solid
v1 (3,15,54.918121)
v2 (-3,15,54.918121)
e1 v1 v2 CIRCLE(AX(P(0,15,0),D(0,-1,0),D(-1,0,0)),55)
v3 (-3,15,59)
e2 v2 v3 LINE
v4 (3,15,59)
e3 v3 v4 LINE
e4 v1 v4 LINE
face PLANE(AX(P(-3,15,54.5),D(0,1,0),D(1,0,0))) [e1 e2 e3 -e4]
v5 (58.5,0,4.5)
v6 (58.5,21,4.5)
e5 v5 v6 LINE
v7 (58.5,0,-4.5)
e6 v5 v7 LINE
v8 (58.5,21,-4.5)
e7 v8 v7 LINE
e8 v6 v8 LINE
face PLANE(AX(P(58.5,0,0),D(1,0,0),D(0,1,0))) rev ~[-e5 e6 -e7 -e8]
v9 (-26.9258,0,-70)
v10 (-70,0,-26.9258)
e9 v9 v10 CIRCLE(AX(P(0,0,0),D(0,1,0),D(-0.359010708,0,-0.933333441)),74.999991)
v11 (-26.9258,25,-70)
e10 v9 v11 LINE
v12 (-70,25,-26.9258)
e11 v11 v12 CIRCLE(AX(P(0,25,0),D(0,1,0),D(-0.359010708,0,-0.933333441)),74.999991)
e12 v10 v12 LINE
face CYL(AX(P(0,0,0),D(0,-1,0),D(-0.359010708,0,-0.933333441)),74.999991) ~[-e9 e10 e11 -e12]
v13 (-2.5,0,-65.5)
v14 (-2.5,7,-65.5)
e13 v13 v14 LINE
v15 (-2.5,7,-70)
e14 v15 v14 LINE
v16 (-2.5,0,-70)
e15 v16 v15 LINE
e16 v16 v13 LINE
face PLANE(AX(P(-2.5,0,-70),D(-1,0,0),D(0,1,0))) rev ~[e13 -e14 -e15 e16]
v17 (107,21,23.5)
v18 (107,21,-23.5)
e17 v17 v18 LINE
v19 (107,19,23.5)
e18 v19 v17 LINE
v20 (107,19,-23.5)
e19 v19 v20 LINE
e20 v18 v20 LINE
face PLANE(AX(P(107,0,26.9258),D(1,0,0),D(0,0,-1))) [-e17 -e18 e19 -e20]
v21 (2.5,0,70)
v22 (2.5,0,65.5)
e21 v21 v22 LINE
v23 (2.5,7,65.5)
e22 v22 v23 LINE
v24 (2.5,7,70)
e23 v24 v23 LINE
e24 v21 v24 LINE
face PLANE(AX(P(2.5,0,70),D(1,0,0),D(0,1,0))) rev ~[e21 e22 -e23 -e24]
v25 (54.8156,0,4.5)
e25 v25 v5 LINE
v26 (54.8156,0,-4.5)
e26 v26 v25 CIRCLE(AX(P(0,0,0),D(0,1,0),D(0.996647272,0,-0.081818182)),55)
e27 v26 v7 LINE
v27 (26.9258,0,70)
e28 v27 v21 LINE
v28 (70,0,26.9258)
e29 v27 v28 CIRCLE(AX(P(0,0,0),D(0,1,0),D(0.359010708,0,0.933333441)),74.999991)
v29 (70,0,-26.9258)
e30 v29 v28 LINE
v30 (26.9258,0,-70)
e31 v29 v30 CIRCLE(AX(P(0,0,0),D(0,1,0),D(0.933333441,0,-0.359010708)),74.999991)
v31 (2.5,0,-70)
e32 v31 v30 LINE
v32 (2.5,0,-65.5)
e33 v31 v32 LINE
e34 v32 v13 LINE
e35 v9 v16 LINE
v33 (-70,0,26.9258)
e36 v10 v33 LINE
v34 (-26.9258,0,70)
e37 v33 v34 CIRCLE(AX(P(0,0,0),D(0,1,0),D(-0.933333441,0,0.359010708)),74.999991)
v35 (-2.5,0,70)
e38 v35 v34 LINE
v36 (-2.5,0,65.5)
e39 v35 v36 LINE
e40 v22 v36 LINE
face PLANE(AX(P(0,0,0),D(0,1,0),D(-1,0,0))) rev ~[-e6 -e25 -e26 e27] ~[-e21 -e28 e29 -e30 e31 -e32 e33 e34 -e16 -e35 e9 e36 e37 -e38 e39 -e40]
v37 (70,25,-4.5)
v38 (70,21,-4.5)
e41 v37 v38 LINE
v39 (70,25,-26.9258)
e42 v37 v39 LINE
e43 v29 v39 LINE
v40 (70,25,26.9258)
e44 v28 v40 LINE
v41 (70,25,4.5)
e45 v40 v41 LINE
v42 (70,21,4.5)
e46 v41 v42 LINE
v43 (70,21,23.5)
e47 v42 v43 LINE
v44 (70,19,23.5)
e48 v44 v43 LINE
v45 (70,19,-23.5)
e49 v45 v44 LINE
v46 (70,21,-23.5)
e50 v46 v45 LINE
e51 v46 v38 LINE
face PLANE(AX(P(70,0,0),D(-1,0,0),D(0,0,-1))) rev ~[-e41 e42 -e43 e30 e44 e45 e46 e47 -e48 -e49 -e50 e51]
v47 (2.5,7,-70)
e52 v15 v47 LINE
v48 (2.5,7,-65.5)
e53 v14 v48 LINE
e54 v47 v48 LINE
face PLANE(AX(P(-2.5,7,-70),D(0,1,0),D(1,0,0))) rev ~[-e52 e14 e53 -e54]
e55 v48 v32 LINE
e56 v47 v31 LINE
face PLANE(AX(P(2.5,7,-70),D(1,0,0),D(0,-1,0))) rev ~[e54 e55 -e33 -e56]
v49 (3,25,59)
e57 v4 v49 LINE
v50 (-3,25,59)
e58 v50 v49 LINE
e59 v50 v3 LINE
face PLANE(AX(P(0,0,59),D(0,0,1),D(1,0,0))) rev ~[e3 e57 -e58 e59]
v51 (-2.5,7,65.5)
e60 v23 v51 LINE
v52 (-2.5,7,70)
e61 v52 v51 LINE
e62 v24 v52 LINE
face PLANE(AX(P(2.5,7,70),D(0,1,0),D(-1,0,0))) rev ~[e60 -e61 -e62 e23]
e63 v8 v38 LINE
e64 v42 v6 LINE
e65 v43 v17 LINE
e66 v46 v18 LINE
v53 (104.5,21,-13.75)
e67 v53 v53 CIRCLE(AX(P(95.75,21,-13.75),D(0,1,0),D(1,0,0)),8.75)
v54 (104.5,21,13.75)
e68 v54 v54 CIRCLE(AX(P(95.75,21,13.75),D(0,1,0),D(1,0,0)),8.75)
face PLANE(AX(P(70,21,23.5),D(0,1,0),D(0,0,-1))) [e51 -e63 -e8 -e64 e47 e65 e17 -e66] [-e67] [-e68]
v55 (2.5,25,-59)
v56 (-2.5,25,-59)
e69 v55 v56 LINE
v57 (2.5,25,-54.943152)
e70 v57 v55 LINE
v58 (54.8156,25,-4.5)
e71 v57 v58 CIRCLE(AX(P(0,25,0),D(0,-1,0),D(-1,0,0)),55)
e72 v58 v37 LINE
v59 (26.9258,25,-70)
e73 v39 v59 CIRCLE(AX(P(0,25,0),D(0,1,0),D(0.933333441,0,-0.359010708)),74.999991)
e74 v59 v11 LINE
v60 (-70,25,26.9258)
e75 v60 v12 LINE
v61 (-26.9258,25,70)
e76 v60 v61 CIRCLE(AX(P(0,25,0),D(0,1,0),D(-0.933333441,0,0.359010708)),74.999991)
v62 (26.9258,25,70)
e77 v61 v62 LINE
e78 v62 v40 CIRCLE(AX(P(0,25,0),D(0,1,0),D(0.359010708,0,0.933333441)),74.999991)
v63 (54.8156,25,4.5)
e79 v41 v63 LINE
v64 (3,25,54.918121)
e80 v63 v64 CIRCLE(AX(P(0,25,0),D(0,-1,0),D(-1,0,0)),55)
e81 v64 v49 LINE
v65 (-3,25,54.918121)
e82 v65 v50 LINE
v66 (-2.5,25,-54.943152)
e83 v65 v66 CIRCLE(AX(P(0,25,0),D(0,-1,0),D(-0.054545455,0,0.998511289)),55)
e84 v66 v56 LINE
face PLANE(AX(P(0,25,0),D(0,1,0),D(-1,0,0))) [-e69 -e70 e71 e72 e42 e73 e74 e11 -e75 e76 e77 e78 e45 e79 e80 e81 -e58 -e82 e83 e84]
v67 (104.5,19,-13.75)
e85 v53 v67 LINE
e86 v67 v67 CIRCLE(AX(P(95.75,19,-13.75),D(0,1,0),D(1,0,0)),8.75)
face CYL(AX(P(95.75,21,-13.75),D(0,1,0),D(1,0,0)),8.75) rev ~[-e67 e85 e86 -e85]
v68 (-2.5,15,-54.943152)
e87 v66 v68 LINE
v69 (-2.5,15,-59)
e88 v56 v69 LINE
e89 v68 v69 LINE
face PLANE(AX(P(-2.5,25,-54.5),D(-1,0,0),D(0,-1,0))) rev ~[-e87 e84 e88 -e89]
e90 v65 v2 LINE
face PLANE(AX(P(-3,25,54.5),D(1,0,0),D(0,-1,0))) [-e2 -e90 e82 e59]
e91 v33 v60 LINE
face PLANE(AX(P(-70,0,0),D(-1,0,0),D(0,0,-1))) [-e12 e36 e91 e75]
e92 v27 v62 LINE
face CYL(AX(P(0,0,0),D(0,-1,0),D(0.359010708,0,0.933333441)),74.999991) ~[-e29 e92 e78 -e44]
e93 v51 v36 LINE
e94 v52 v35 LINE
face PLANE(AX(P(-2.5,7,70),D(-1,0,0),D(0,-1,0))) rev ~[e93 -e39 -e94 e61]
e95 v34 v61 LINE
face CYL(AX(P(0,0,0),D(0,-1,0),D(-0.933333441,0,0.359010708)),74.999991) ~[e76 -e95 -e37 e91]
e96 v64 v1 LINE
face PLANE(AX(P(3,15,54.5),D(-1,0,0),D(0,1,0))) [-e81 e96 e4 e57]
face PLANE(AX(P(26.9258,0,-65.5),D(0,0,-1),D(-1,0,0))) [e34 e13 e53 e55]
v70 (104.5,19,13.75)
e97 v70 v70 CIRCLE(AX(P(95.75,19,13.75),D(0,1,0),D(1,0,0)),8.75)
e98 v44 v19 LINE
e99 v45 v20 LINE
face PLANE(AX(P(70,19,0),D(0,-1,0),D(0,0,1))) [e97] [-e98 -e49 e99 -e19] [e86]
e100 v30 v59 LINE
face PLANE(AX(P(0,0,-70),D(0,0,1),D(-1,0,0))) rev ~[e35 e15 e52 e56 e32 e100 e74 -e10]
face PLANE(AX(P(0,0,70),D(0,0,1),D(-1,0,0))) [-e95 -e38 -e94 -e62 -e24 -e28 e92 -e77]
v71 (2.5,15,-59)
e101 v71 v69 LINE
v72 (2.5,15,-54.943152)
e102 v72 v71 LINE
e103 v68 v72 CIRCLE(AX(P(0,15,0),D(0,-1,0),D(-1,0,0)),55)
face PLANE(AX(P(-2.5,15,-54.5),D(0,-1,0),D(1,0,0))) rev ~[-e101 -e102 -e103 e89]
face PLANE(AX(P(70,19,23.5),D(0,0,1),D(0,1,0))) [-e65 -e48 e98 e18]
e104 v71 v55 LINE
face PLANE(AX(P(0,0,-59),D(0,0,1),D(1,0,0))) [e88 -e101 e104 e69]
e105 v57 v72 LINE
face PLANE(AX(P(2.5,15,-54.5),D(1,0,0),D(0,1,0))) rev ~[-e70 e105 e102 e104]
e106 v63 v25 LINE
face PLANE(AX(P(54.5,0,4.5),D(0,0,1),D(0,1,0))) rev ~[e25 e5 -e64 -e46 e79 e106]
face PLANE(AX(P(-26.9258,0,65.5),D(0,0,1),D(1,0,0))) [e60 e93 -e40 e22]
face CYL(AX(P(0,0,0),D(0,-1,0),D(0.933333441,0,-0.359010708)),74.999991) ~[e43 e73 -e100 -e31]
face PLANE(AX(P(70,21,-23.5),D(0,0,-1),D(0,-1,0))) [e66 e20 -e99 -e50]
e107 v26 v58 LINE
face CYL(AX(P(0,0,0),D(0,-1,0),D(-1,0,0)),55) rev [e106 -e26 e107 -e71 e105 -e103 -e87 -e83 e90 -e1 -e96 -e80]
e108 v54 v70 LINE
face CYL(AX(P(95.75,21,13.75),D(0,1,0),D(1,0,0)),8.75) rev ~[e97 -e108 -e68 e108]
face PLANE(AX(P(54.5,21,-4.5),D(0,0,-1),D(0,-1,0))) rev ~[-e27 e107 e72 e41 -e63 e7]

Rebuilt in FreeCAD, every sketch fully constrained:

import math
import FreeCAD as App
import Part
import Sketcher
from FreeCAD import Vector

doc = App.newDocument("Part")
body = doc.addObject("PartDesign::Body", "Body")

# Sketch on XZ plane
sketch1 = body.newObject("Sketcher::SketchObject", "Sketch")
sketch1.AttachmentSupport = (doc.getObject("XZ_Plane"), [""])
sketch1.MapMode = "FlatFace"
sketch1.addGeometry([
    Part.LineSegment(Vector(-70, -26.9258, 0), Vector(-70, 26.9258, 0)),  # 0
    Part.ArcOfCircle(Part.Circle(Vector(0, 0, 0), Vector(0, 0, 1), 74.999991), math.radians(111.039453), math.radians(158.960547)),  # 1
    Part.LineSegment(Vector(-26.9258, 70, 0), Vector(26.9258, 70, 0)),  # 2
    Part.ArcOfCircle(Part.Circle(Vector(0, 0, 0), Vector(0, 0, 1), 74.999991), math.radians(21.039453), math.radians(68.960547)),  # 3
    Part.LineSegment(Vector(70, 26.9258, 0), Vector(70, -26.9258, 0)),  # 4
    Part.ArcOfCircle(Part.Circle(Vector(0, 0, 0), Vector(0, 0, 1), 74.999991), math.radians(-68.960547), math.radians(-21.039453)),  # 5
    Part.LineSegment(Vector(26.9258, -70, 0), Vector(-26.9258, -70, 0)),  # 6
    Part.ArcOfCircle(Part.Circle(Vector(0, 0, 0), Vector(0, 0, 1), 74.999991), math.radians(-158.960547), math.radians(-111.039453)),  # 7
    Part.Circle(Vector(0, 0, 0), Vector(0, 0, 1), 55),  # 8
], False)
sketch1.addConstraint([
    Sketcher.Constraint("Coincident", 0, 2, 1, 2),
    Sketcher.Constraint("Coincident", 1, 1, 2, 1),
    Sketcher.Constraint("Coincident", 2, 2, 3, 2),
    Sketcher.Constraint("Coincident", 3, 1, 4, 1),
    Sketcher.Constraint("Coincident", 4, 2, 5, 2),
    Sketcher.Constraint("Coincident", 5, 1, 6, 1),
    Sketcher.Constraint("Coincident", 6, 2, 7, 2),
    Sketcher.Constraint("Coincident", 7, 1, 0, 1),
    Sketcher.Constraint("Vertical", 0),
    Sketcher.Constraint("Horizontal", 2),
    Sketcher.Constraint("Vertical", 4),
    Sketcher.Constraint("Horizontal", 6),
    Sketcher.Constraint("Coincident", 1, 3, -1, 1),
    Sketcher.Constraint("Coincident", 3, 3, -1, 1),
    Sketcher.Constraint("Coincident", 5, 3, -1, 1),
    Sketcher.Constraint("Coincident", 7, 3, -1, 1),
    Sketcher.Constraint("Coincident", 8, 3, -1, 1),
    Sketcher.Constraint("Equal", 1, 3),
    Sketcher.Constraint("Equal", 3, 5),
    Sketcher.Constraint("Equal", 5, 7),
    Sketcher.Constraint("Horizontal", 0, 2, 3, 1),
    Sketcher.Constraint("Vertical", 2, 2, 5, 1),
    Sketcher.Constraint("Equal", 6, 0),
    Sketcher.Constraint("Diameter", 8, 110.0),
    Sketcher.Constraint("Radius", 1, 75.0),
    Sketcher.Constraint("DistanceX", 0, 2, -1, 1, 70.0),
])
pad1 = body.newObject("PartDesign::Pad", "Pad")
pad1.Profile = sketch1
pad1.Length = 25
pad1.Reversed = True

# Sketch on XY plane
sketch2 = body.newObject("Sketcher::SketchObject", "Sketch001")
sketch2.AttachmentSupport = (doc.getObject("XY_Plane"), [""])
sketch2.MapMode = "FlatFace"
sketch2.AttachmentOffset = App.Placement(Vector(0, 0, 70), App.Rotation())
sketch2.addGeometry([
    Part.LineSegment(Vector(-2.5, 0, 0), Vector(2.5, 0, 0)),
    Part.LineSegment(Vector(2.5, 0, 0), Vector(2.5, 7, 0)),
    Part.LineSegment(Vector(2.5, 7, 0), Vector(-2.5, 7, 0)),
    Part.LineSegment(Vector(-2.5, 7, 0), Vector(-2.5, 0, 0)),
], False)
sketch2.addConstraint([
    Sketcher.Constraint("Coincident", 0, 2, 1, 1),
    Sketcher.Constraint("Coincident", 1, 2, 2, 1),
    Sketcher.Constraint("Coincident", 2, 2, 3, 1),
    Sketcher.Constraint("Coincident", 3, 2, 0, 1),
    Sketcher.Constraint("Horizontal", 0),
    Sketcher.Constraint("Vertical", 1),
    Sketcher.Constraint("Horizontal", 2),
    Sketcher.Constraint("Vertical", 3),
    Sketcher.Constraint("Symmetric", 0, 2, 3, 2, -1, 1),
    Sketcher.Constraint("DistanceX", 0, 1, 0, 2, 5.0),
    Sketcher.Constraint("DistanceY", 1, 1, 1, 2, 7.0),
])
pocket1 = body.newObject("PartDesign::Pocket", "Pocket")
pocket1.Profile = sketch2
pocket1.Length = 4.5

# Sketch on XY plane
sketch3 = body.newObject("Sketcher::SketchObject", "Sketch002")
sketch3.AttachmentSupport = (doc.getObject("XY_Plane"), [""])
sketch3.MapMode = "FlatFace"
sketch3.AttachmentOffset = App.Placement(Vector(0, 0, -70), App.Rotation())
sketch3.addGeometry([
    Part.LineSegment(Vector(2.5, 7, 0), Vector(2.5, 0, 0)),
    Part.LineSegment(Vector(2.5, 0, 0), Vector(-2.5, 0, 0)),
    Part.LineSegment(Vector(-2.5, 0, 0), Vector(-2.5, 7, 0)),
    Part.LineSegment(Vector(-2.5, 7, 0), Vector(2.5, 7, 0)),
], False)
sketch3.addConstraint([
    Sketcher.Constraint("Coincident", 0, 2, 1, 1),
    Sketcher.Constraint("Coincident", 1, 2, 2, 1),
    Sketcher.Constraint("Coincident", 2, 2, 3, 1),
    Sketcher.Constraint("Coincident", 3, 2, 0, 1),
    Sketcher.Constraint("Vertical", 0),
    Sketcher.Constraint("Horizontal", 1),
    Sketcher.Constraint("Vertical", 2),
    Sketcher.Constraint("Horizontal", 3),
    Sketcher.Constraint("Symmetric", 0, 2, 1, 2, -1, 1),
    Sketcher.Constraint("DistanceX", 1, 2, 1, 1, 5.0),
    Sketcher.Constraint("DistanceY", 0, 2, 0, 1, 7.0),
])
pocket2 = body.newObject("PartDesign::Pocket", "Pocket001")
pocket2.Profile = sketch3
pocket2.Length = 4.5
pocket2.Reversed = True

# Sketch on XZ plane
sketch4 = body.newObject("Sketcher::SketchObject", "Sketch003")
sketch4.AttachmentSupport = (doc.getObject("XZ_Plane"), [""])
sketch4.MapMode = "FlatFace"
sketch4.AttachmentOffset = App.Placement(Vector(0, 0, -25), App.Rotation())
sketch4.addGeometry([
    Part.LineSegment(Vector(52.6737, 4.5, 0), Vector(70, 4.5, 0)),
    Part.LineSegment(Vector(70, 4.5, 0), Vector(70, -4.5, 0)),
    Part.LineSegment(Vector(70, -4.5, 0), Vector(52.6737, -4.5, 0)),
    Part.LineSegment(Vector(52.6737, -4.5, 0), Vector(52.6737, 4.5, 0)),
], False)
sketch4.addConstraint([
    Sketcher.Constraint("Coincident", 0, 2, 1, 1),
    Sketcher.Constraint("Coincident", 1, 2, 2, 1),
    Sketcher.Constraint("Coincident", 2, 2, 3, 1),
    Sketcher.Constraint("Coincident", 3, 2, 0, 1),
    Sketcher.Constraint("Horizontal", 0),
    Sketcher.Constraint("Vertical", 1),
    Sketcher.Constraint("Horizontal", 2),
    Sketcher.Constraint("Vertical", 3),
    Sketcher.Constraint("DistanceY", 1, 2, 1, 1, 9.0),
    Sketcher.Constraint("DistanceY", -1, 1, 0, 2, 4.5),
    Sketcher.Constraint("DistanceX", -1, 1, 0, 2, 70.0),
    Sketcher.Constraint("DistanceX", 0, 1, 0, 2, 17.3263),
])
pocket3 = body.newObject("PartDesign::Pocket", "Pocket002")
pocket3.Profile = sketch4
pocket3.Length = 4
pocket3.Reversed = True

# Sketch on XY plane
sketch5 = body.newObject("Sketcher::SketchObject", "Sketch004")
sketch5.AttachmentSupport = (doc.getObject("XY_Plane"), [""])
sketch5.MapMode = "FlatFace"
sketch5.AttachmentOffset = App.Placement(Vector(0, 0, 54.5), App.Rotation())
sketch5.addGeometry([
    Part.LineSegment(Vector(-3, 25, 0), Vector(-3, 15, 0)),
    Part.LineSegment(Vector(-3, 15, 0), Vector(3, 15, 0)),
    Part.LineSegment(Vector(3, 15, 0), Vector(3, 25, 0)),
    Part.LineSegment(Vector(3, 25, 0), Vector(-3, 25, 0)),
], False)
sketch5.addConstraint([
    Sketcher.Constraint("Coincident", 0, 2, 1, 1),
    Sketcher.Constraint("Coincident", 1, 2, 2, 1),
    Sketcher.Constraint("Coincident", 2, 2, 3, 1),
    Sketcher.Constraint("Coincident", 3, 2, 0, 1),
    Sketcher.Constraint("Vertical", 0),
    Sketcher.Constraint("Horizontal", 1),
    Sketcher.Constraint("Vertical", 2),
    Sketcher.Constraint("Horizontal", 3),
    Sketcher.Constraint("DistanceX", 1, 1, 1, 2, 6.0),
    Sketcher.Constraint("DistanceY", 0, 2, 0, 1, 10.0),
    Sketcher.Constraint("DistanceX", 0, 2, -1, 1, 3.0),
    Sketcher.Constraint("DistanceY", -1, 1, 0, 2, 15.0),
])
pocket4 = body.newObject("PartDesign::Pocket", "Pocket003")
pocket4.Profile = sketch5
pocket4.Length = 4.5
pocket4.Reversed = True

# Sketch on XY plane
sketch6 = body.newObject("Sketcher::SketchObject", "Sketch005")
sketch6.AttachmentSupport = (doc.getObject("XY_Plane"), [""])
sketch6.MapMode = "FlatFace"
sketch6.AttachmentOffset = App.Placement(Vector(0, 0, -54.5), App.Rotation())
sketch6.addGeometry([
    Part.LineSegment(Vector(-2.5, 25, 0), Vector(-2.5, 15, 0)),
    Part.LineSegment(Vector(-2.5, 15, 0), Vector(2.5, 15, 0)),
    Part.LineSegment(Vector(2.5, 15, 0), Vector(2.5, 25, 0)),
    Part.LineSegment(Vector(2.5, 25, 0), Vector(-2.5, 25, 0)),
], False)
sketch6.addConstraint([
    Sketcher.Constraint("Coincident", 0, 2, 1, 1),
    Sketcher.Constraint("Coincident", 1, 2, 2, 1),
    Sketcher.Constraint("Coincident", 2, 2, 3, 1),
    Sketcher.Constraint("Coincident", 3, 2, 0, 1),
    Sketcher.Constraint("Vertical", 0),
    Sketcher.Constraint("Horizontal", 1),
    Sketcher.Constraint("Vertical", 2),
    Sketcher.Constraint("Horizontal", 3),
    Sketcher.Constraint("DistanceX", 1, 1, 1, 2, 5.0),
    Sketcher.Constraint("DistanceY", 0, 2, 0, 1, 10.0),
    Sketcher.Constraint("DistanceY", -1, 1, 0, 2, 15.0),
    Sketcher.Constraint("DistanceX", 0, 2, -1, 1, 2.5),
])
pocket5 = body.newObject("PartDesign::Pocket", "Pocket004")
pocket5.Profile = sketch6
pocket5.Length = 4.5

# Sketch on YZ plane
sketch7 = body.newObject("Sketcher::SketchObject", "Sketch006")
sketch7.AttachmentSupport = (doc.getObject("YZ_Plane"), [""])
sketch7.MapMode = "FlatFace"
sketch7.AttachmentOffset = App.Placement(Vector(0, 0, 70), App.Rotation())
sketch7.addGeometry([
    Part.LineSegment(Vector(21, 23.5, 0), Vector(19, 23.5, 0)),
    Part.LineSegment(Vector(19, 23.5, 0), Vector(19, -23.5, 0)),
    Part.LineSegment(Vector(19, -23.5, 0), Vector(21, -23.5, 0)),
    Part.LineSegment(Vector(21, -23.5, 0), Vector(21, 23.5, 0)),
], False)
sketch7.addConstraint([
    Sketcher.Constraint("Coincident", 0, 2, 1, 1),
    Sketcher.Constraint("Coincident", 1, 2, 2, 1),
    Sketcher.Constraint("Coincident", 2, 2, 3, 1),
    Sketcher.Constraint("Coincident", 3, 2, 0, 1),
    Sketcher.Constraint("Horizontal", 0),
    Sketcher.Constraint("Vertical", 1),
    Sketcher.Constraint("Horizontal", 2),
    Sketcher.Constraint("Vertical", 3),
    Sketcher.Constraint("DistanceX", 0, 2, 0, 1, 2.0),
    Sketcher.Constraint("DistanceY", 1, 2, 1, 1, 47.0),
    Sketcher.Constraint("DistanceX", -1, 1, 0, 2, 19.0),
    Sketcher.Constraint("DistanceY", -1, 1, 0, 2, 23.5),
])
pad2 = body.newObject("PartDesign::Pad", "Pad001")
pad2.Profile = sketch7
pad2.Length = 37

# Sketch on XZ plane
sketch8 = body.newObject("Sketcher::SketchObject", "Sketch007")
sketch8.AttachmentSupport = (doc.getObject("XZ_Plane"), [""])
sketch8.MapMode = "FlatFace"
sketch8.AttachmentOffset = App.Placement(Vector(0, 0, -21), App.Rotation())
sketch8.addGeometry([
    Part.Circle(Vector(95.75, 13.75, 0), Vector(0, 0, 1), 8.75),
    Part.Circle(Vector(95.75, -13.75, 0), Vector(0, 0, 1), 8.75),
], False)
sketch8.addConstraint([
    Sketcher.Constraint("Equal", 0, 1),
    Sketcher.Constraint("Symmetric", 0, 3, 1, 3, -1),
    Sketcher.Constraint("Diameter", 0, 17.5),
    Sketcher.Constraint("DistanceY", 1, 3, 0, 3, 27.5),
    Sketcher.Constraint("DistanceX", -1, 1, 0, 3, 95.75),
])
pocket6 = body.newObject("PartDesign::Pocket", "Pocket005")
pocket6.Profile = sketch8
pocket6.Length = 27
pocket6.Reversed = True

# Sketch on YZ plane
sketch9 = body.newObject("Sketcher::SketchObject", "Sketch008")
sketch9.AttachmentSupport = (doc.getObject("YZ_Plane"), [""])
sketch9.MapMode = "FlatFace"
sketch9.AttachmentOffset = App.Placement(Vector(0, 0, 54.5), App.Rotation())
sketch9.addGeometry([
    Part.LineSegment(Vector(21, 4.5, 0), Vector(0, 4.5, 0)),
    Part.LineSegment(Vector(0, 4.5, 0), Vector(0, -4.5, 0)),
    Part.LineSegment(Vector(0, -4.5, 0), Vector(21, -4.5, 0)),
    Part.LineSegment(Vector(21, -4.5, 0), Vector(21, 4.5, 0)),
], False)
sketch9.addConstraint([
    Sketcher.Constraint("Coincident", 0, 2, 1, 1),
    Sketcher.Constraint("Coincident", 1, 2, 2, 1),
    Sketcher.Constraint("Coincident", 2, 2, 3, 1),
    Sketcher.Constraint("Coincident", 3, 2, 0, 1),
    Sketcher.Constraint("Horizontal", 0),
    Sketcher.Constraint("Vertical", 1),
    Sketcher.Constraint("Horizontal", 2),
    Sketcher.Constraint("Vertical", 3),
    Sketcher.Constraint("Symmetric", 0, 2, 1, 2, -1, 1),
    Sketcher.Constraint("DistanceY", 1, 2, 1, 1, 9.0),
    Sketcher.Constraint("DistanceX", 0, 2, 0, 1, 21.0),
])
pocket7 = body.newObject("PartDesign::Pocket", "Pocket006")
pocket7.Profile = sketch9
pocket7.Length = 4
pocket7.Reversed = True

doc.recompute()
